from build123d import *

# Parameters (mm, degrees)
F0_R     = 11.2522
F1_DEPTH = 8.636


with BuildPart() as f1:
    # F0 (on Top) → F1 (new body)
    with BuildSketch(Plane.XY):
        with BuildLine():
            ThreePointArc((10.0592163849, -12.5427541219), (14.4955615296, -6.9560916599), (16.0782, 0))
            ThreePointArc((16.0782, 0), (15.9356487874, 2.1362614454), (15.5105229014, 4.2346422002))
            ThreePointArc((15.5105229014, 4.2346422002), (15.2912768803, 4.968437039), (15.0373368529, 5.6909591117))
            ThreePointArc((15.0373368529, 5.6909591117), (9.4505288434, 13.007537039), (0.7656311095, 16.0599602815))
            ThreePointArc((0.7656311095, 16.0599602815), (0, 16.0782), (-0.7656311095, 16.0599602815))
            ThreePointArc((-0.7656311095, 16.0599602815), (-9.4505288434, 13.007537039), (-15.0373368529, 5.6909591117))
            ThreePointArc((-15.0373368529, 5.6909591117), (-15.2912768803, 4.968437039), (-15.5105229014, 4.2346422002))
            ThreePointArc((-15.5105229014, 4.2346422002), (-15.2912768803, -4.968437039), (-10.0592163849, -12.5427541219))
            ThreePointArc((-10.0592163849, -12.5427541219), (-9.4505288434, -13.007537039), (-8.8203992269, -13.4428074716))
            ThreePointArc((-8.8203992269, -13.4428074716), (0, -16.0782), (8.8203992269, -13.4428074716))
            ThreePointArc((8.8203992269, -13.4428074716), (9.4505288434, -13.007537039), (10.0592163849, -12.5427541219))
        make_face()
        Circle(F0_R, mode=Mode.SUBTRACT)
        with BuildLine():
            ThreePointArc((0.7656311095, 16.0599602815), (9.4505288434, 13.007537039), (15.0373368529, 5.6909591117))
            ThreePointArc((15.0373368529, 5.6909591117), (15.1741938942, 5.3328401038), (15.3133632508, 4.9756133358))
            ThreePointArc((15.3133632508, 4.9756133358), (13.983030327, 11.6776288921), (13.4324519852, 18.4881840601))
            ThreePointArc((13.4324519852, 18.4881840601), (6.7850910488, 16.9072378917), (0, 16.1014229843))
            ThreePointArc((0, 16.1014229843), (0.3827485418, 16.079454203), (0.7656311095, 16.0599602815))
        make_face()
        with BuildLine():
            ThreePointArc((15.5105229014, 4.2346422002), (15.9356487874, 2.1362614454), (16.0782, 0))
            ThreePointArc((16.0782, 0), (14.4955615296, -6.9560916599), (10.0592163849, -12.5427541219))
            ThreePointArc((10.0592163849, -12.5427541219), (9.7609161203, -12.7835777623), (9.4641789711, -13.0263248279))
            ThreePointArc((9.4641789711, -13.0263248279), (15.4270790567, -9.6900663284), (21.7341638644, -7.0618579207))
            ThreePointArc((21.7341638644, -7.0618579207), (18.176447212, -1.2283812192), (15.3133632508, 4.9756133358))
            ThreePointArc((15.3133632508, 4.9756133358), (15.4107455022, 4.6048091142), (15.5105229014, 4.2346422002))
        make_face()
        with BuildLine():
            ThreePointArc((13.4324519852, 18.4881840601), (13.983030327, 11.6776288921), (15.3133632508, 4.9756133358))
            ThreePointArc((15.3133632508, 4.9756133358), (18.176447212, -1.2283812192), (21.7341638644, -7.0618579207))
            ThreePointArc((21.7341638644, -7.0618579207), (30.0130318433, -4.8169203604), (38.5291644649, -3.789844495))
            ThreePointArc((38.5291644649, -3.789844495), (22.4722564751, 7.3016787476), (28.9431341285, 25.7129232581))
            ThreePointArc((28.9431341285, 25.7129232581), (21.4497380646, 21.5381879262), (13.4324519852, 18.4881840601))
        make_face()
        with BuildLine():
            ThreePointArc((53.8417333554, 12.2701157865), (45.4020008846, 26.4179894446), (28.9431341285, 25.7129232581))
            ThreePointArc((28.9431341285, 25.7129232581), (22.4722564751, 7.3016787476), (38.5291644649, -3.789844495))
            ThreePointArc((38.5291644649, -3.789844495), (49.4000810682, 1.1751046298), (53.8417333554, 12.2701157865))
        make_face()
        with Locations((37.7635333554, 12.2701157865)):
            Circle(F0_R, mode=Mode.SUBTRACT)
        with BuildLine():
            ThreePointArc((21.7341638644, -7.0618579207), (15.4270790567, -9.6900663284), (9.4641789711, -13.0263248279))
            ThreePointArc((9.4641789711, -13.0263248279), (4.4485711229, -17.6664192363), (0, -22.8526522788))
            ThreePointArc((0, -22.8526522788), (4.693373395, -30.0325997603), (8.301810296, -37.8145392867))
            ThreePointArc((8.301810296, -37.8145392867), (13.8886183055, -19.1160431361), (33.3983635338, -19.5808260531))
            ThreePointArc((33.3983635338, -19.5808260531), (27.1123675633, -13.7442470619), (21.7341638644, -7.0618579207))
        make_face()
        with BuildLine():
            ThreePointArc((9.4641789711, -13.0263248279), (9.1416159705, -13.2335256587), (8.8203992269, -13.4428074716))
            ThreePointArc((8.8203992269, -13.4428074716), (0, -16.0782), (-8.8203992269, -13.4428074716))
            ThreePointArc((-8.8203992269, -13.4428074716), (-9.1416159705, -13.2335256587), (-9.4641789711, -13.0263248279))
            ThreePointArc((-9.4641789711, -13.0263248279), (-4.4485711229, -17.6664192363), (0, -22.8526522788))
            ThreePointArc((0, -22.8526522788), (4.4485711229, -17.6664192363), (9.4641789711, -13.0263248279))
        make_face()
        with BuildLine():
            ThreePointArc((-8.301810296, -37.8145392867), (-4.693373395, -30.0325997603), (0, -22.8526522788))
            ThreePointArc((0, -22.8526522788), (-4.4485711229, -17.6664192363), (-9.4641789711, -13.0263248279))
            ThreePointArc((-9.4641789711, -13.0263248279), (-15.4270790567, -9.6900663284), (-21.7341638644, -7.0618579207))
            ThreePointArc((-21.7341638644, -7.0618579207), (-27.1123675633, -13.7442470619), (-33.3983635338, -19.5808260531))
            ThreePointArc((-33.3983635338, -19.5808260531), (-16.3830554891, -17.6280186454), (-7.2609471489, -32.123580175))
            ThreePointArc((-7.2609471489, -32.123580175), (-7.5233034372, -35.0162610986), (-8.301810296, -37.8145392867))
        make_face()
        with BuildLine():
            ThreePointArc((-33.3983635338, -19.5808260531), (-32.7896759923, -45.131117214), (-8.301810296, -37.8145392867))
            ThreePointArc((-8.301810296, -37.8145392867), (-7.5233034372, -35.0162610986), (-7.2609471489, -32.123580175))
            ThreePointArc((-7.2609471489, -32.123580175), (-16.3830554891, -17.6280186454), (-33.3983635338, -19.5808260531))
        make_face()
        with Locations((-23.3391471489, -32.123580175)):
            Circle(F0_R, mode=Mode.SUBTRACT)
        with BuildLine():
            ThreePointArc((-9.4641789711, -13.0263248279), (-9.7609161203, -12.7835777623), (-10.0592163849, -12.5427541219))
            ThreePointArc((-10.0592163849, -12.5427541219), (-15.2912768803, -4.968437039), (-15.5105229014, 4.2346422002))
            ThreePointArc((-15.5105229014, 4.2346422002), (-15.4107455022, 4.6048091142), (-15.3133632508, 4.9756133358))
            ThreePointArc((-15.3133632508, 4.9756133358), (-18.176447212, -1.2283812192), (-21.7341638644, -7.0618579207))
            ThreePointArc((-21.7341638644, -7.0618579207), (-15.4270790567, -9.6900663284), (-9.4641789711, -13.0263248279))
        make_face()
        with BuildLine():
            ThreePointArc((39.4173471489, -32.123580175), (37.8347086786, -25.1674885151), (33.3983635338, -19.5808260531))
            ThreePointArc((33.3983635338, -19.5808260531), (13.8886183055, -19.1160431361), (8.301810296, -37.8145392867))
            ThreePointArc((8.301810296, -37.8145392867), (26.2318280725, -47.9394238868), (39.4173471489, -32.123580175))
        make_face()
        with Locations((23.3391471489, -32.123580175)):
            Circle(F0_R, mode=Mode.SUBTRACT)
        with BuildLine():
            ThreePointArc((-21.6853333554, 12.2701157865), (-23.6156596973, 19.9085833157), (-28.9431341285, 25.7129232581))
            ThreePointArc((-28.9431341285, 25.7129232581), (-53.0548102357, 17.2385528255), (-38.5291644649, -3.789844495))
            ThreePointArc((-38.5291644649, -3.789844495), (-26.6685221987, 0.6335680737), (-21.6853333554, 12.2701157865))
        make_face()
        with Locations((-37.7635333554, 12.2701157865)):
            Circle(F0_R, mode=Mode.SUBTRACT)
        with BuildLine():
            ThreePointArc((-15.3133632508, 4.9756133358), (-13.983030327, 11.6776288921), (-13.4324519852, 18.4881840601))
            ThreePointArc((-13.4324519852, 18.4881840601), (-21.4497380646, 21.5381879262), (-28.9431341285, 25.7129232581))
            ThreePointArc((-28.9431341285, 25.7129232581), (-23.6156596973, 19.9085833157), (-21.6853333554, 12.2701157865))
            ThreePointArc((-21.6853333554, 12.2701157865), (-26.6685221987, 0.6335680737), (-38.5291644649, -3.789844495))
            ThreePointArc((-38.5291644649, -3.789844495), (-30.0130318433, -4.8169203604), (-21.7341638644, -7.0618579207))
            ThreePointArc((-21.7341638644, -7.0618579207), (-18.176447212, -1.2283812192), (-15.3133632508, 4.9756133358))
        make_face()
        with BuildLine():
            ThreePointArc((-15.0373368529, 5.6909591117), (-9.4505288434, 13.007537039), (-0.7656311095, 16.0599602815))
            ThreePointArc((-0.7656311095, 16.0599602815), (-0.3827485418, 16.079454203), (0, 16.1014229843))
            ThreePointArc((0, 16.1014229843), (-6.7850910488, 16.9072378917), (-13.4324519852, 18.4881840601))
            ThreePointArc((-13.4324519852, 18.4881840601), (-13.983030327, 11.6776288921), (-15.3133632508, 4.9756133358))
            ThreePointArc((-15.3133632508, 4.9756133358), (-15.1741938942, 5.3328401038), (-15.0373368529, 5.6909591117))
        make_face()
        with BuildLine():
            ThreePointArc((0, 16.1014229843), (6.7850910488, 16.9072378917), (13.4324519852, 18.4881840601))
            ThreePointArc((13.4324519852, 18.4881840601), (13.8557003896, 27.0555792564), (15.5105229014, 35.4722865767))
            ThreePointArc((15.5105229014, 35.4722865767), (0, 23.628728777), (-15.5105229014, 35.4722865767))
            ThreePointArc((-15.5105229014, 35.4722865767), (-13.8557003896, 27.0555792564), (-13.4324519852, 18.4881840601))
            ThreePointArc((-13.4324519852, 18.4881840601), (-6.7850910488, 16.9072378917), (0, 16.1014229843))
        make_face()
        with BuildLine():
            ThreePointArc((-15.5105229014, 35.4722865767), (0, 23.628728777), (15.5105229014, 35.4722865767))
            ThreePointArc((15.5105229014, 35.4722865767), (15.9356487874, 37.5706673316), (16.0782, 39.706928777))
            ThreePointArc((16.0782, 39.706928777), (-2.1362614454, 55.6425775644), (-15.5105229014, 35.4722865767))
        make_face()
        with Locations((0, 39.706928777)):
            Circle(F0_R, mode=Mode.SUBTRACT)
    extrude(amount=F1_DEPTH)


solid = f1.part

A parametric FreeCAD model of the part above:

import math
import FreeCAD as App
import Part
import Sketcher
from FreeCAD import Vector
Q = App.Units.Quantity

doc = App.newDocument("Part")
body = doc.addObject("PartDesign::Body", "Body")

sketch1 = body.newObject("Sketcher::SketchObject", "Sketch")
sketch1.AttachmentSupport = (doc.getObject("XY_Plane"), [""])
sketch1.MapMode = "FlatFace"
sketch1.addGeometry(Part.ArcOfCircle(Part.Circle(Vector(-3.589543, 75.294638, 0), Vector(0, 0, 1), 59.301952), math.radians(-73.31921), math.radians(-56.729412)), False)
sketch1.addGeometry(Part.ArcOfCircle(Part.Circle(Vector(72.718685, 19.853464, 0), Vector(0, 0, 1), 59.301952), math.radians(164.729412), math.radians(181.31921)), False)
sketch1.addGeometry(Part.ArcOfCircle(Part.Circle(Vector(0, 39.706929, 0), Vector(0, 0, 1), 16.0782), math.radians(-15.270588), math.radians(0)), False)
sketch1.addGeometry(Part.ArcOfCircle(Part.Circle(Vector(0, 39.706929, 0), Vector(0, 0, 1), 16.0782), math.radians(0), math.radians(195.270588)), False)
sketch1.addGeometry(Part.ArcOfCircle(Part.Circle(Vector(-72.718685, 19.853464, 0), Vector(0, 0, 1), 59.301952), math.radians(-1.31921), math.radians(15.270588)), False)
sketch1.addGeometry(Part.ArcOfCircle(Part.Circle(Vector(3.589543, 75.294638, 0), Vector(0, 0, 1), 59.301952), math.radians(-123.270588), math.radians(-106.68079)), False)
sketch1.addGeometry(Part.ArcOfCircle(Part.Circle(Vector(-37.763533, 12.270116, 0), Vector(0, 0, 1), 16.0782), math.radians(56.729412), math.radians(267.270588)), False)
sketch1.addGeometry(Part.ArcOfCircle(Part.Circle(Vector(-41.353076, -63.024522, 0), Vector(0, 0, 1), 59.301952), math.radians(70.68079), math.radians(87.270588)), False)
sketch1.addGeometry(Part.ArcOfCircle(Part.Circle(Vector(-70.500226, 26.681181, 0), Vector(0, 0, 1), 59.301952), math.radians(-51.270588), math.radians(-34.68079)), False)
sketch1.addGeometry(Part.ArcOfCircle(Part.Circle(Vector(-23.339147, -32.12358, 0), Vector(0, 0, 1), 16.0782), math.radians(128.729412), math.radians(339.270588)), False)
sketch1.addGeometry(Part.ArcOfCircle(Part.Circle(Vector(47.161079, -58.804761, 0), Vector(0, 0, 1), 59.301952), math.radians(142.68079), math.radians(159.270588)), False)
sketch1.addGeometry(Part.ArcOfCircle(Part.Circle(Vector(-47.161079, -58.804761, 0), Vector(0, 0, 1), 59.301952), math.radians(20.729412), math.radians(37.31921)), False)
sketch1.addGeometry(Part.ArcOfCircle(Part.Circle(Vector(23.339147, -32.12358, 0), Vector(0, 0, 1), 16.0782), math.radians(-159.270588), math.radians(0)), False)
sketch1.addGeometry(Part.ArcOfCircle(Part.Circle(Vector(23.339147, -32.12358, 0), Vector(0, 0, 1), 16.0782), math.radians(0), math.radians(51.270588)), False)
sketch1.addGeometry(Part.ArcOfCircle(Part.Circle(Vector(70.500226, 26.681181, 0), Vector(0, 0, 1), 59.301952), math.radians(-145.31921), math.radians(-128.729412)), False)
sketch1.addGeometry(Part.ArcOfCircle(Part.Circle(Vector(41.353076, -63.024522, 0), Vector(0, 0, 1), 59.301952), math.radians(92.729412), math.radians(109.31921)), False)
sketch1.addGeometry(Part.ArcOfCircle(Part.Circle(Vector(37.763533, 12.270116, 0), Vector(0, 0, 1), 16.0782), math.radians(-87.270588), math.radians(123.270588)), False)
sketch1.addGeometry(Part.Circle(Vector(-23.339147, -32.12358, 0), Vector(0, 0, 1), 11.2522), False)
sketch1.addGeometry(Part.ArcOfCircle(Part.Circle(Vector(-41.353076, -63.024521, 0), Vector(0, 0, 1), 59.301951), math.radians(56.729412), math.radians(57.470231)), False)
sketch1.addGeometry(Part.ArcOfCircle(Part.Circle(Vector(-47.161079, -58.804761, 0), Vector(0, 0, 1), 59.301952), math.radians(50.529769), math.radians(51.270588)), False)
sketch1.addGeometry(Part.ArcOfCircle(Part.Circle(Vector(0, 0, 0), Vector(0, 0, 1), 16.0782), math.radians(-128.729412), math.radians(-123.270588)), False)
sketch1.addGeometry(Part.Circle(Vector(23.339147, -32.12358, 0), Vector(0, 0, 1), 11.2522), False)
sketch1.addGeometry(Part.ArcOfCircle(Part.Circle(Vector(47.161079, -58.804761, 0), Vector(0, 0, 1), 59.301952), math.radians(128.729412), math.radians(129.470231)), False)
sketch1.addGeometry(Part.ArcOfCircle(Part.Circle(Vector(41.353076, -63.024521, 0), Vector(0, 0, 1), 59.301951), math.radians(122.529769), math.radians(123.270588)), False)
sketch1.addGeometry(Part.ArcOfCircle(Part.Circle(Vector(0, 0, 0), Vector(0, 0, 1), 16.0782), math.radians(-56.729412), math.radians(-51.270588)), False)
sketch1.addGeometry(Part.Circle(Vector(0, 0, 0), Vector(0, 0, 1), 11.2522), False)
sketch1.addGeometry(Part.Circle(Vector(-37.763533, 12.270116, 0), Vector(0, 0, 1), 11.2522), False)
sketch1.addGeometry(Part.ArcOfCircle(Part.Circle(Vector(0, 0, 0), Vector(0, 0, 1), 16.0782), math.radians(159.270588), math.radians(164.729412)), False)
sketch1.addGeometry(Part.ArcOfCircle(Part.Circle(Vector(-72.718687, 19.853465, 0), Vector(0, 0, 1), 59.301953), math.radians(-15.270588), math.radians(-14.529769)), False)
sketch1.addGeometry(Part.ArcOfCircle(Part.Circle(Vector(-70.500227, 26.681181, 0), Vector(0, 0, 1), 59.301952), math.radians(-21.470231), math.radians(-20.729412)), False)
sketch1.addGeometry(Part.ArcOfCircle(Part.Circle(Vector(70.500227, 26.681181, 0), Vector(0, 0, 1), 59.301952), math.radians(-159.270588), math.radians(-158.529769)), False)
sketch1.addGeometry(Part.ArcOfCircle(Part.Circle(Vector(72.718687, 19.853465, 0), Vector(0, 0, 1), 59.301953), math.radians(-165.470231), math.radians(-164.729412)), False)
sketch1.addGeometry(Part.ArcOfCircle(Part.Circle(Vector(0, 0, 0), Vector(0, 0, 1), 16.0782), math.radians(15.270588), math.radians(20.729412)), False)
sketch1.addGeometry(Part.ArcOfCircle(Part.Circle(Vector(-3.589543, 75.294639, 0), Vector(0, 0, 1), 59.301953), math.radians(-87.270588), math.radians(-86.529769)), False)
sketch1.addGeometry(Part.ArcOfCircle(Part.Circle(Vector(3.589543, 75.294639, 0), Vector(0, 0, 1), 59.301953), math.radians(-93.470231), math.radians(-92.729412)), False)
sketch1.addGeometry(Part.ArcOfCircle(Part.Circle(Vector(0, 0, 0), Vector(0, 0, 1), 16.0782), math.radians(87.270588), math.radians(92.729412)), False)
sketch1.addGeometry(Part.Circle(Vector(37.763533, 12.270116, 0), Vector(0, 0, 1), 11.2522), False)
sketch1.addGeometry(Part.Circle(Vector(0, 39.706929, 0), Vector(0, 0, 1), 11.2522), False)
sketch1.addConstraint(Sketcher.Constraint("Coincident", 0, 1, 1, 2))
sketch1.addConstraint(Sketcher.Constraint("Coincident", 1, 1, 2, 1))
sketch1.addConstraint(Sketcher.Constraint("Coincident", 2, 2, 3, 1))
sketch1.addConstraint(Sketcher.Constraint("Coincident", 3, 2, 4, 2))
sketch1.addConstraint(Sketcher.Constraint("Coincident", 4, 1, 5, 2))
sketch1.addConstraint(Sketcher.Constraint("Coincident", 5, 1, 6, 1))
sketch1.addConstraint(Sketcher.Constraint("Coincident", 6, 2, 7, 2))
sketch1.addConstraint(Sketcher.Constraint("Coincident", 7, 1, 8, 2))
sketch1.addConstraint(Sketcher.Constraint("Coincident", 8, 1, 9, 1))
sketch1.addConstraint(Sketcher.Constraint("Coincident", 9, 2, 10, 2))
sketch1.addConstraint(Sketcher.Constraint("Coincident", 10, 1, 11, 2))
sketch1.addConstraint(Sketcher.Constraint("Coincident", 11, 1, 12, 1))
sketch1.addConstraint(Sketcher.Constraint("Coincident", 12, 2, 13, 1))
sketch1.addConstraint(Sketcher.Constraint("Coincident", 13, 2, 14, 2))
sketch1.addConstraint(Sketcher.Constraint("Coincident", 14, 1, 15, 2))
sketch1.addConstraint(Sketcher.Constraint("Coincident", 15, 1, 16, 1))
sketch1.addConstraint(Sketcher.Constraint("Coincident", 16, 2, 0, 2))
sketch1.addConstraint(Sketcher.Constraint("Coincident", 18, 2, 19, 1))
sketch1.addConstraint(Sketcher.Constraint("Coincident", 19, 2, 20, 1))
sketch1.addConstraint(Sketcher.Constraint("Coincident", 20, 2, 18, 1))
sketch1.addConstraint(Sketcher.Constraint("Coincident", 22, 2, 23, 1))
sketch1.addConstraint(Sketcher.Constraint("Coincident", 23, 2, 24, 1))
sketch1.addConstraint(Sketcher.Constraint("Coincident", 24, 2, 22, 1))
sketch1.addConstraint(Sketcher.Constraint("Coincident", 27, 2, 28, 1))
sketch1.addConstraint(Sketcher.Constraint("Coincident", 28, 2, 29, 1))
sketch1.addConstraint(Sketcher.Constraint("Coincident", 29, 2, 27, 1))
sketch1.addConstraint(Sketcher.Constraint("Coincident", 30, 2, 31, 1))
sketch1.addConstraint(Sketcher.Constraint("Coincident", 31, 2, 32, 1))
sketch1.addConstraint(Sketcher.Constraint("Coincident", 32, 2, 30, 1))
sketch1.addConstraint(Sketcher.Constraint("Coincident", 33, 2, 34, 1))
sketch1.addConstraint(Sketcher.Constraint("Coincident", 34, 2, 35, 1))
sketch1.addConstraint(Sketcher.Constraint("Coincident", 35, 2, 33, 1))
sketch1.addConstraint(Sketcher.Constraint("Coincident", 20, 3, -1, 1))
sketch1.addConstraint(Sketcher.Constraint("Coincident", 24, 3, -1, 1))
sketch1.addConstraint(Sketcher.Constraint("Coincident", 25, 3, -1, 1))
sketch1.addConstraint(Sketcher.Constraint("Coincident", 27, 3, -1, 1))
sketch1.addConstraint(Sketcher.Constraint("Coincident", 32, 3, -1, 1))
sketch1.addConstraint(Sketcher.Constraint("Coincident", 35, 3, -1, 1))
sketch1.addConstraint(Sketcher.Constraint("Coincident", 3, 3, 2, 3))
sketch1.addConstraint(Sketcher.Constraint("Coincident", 13, 3, 12, 3))
sketch1.addConstraint(Sketcher.Constraint("Coincident", 17, 3, 9, 3))
sketch1.addConstraint(Sketcher.Constraint("Coincident", 18, 3, 7, 3))
sketch1.addConstraint(Sketcher.Constraint("Coincident", 19, 3, 11, 3))
sketch1.addConstraint(Sketcher.Constraint("Coincident", 21, 3, 12, 3))
sketch1.addConstraint(Sketcher.Constraint("Coincident", 22, 3, 10, 3))
sketch1.addConstraint(Sketcher.Constraint("Coincident", 23, 3, 15, 3))
sketch1.addConstraint(Sketcher.Constraint("Coincident", 26, 3, 6, 3))
sketch1.addConstraint(Sketcher.Constraint("Coincident", 28, 3, 4, 3))
sketch1.addConstraint(Sketcher.Constraint("Coincident", 29, 3, 8, 3))
sketch1.addConstraint(Sketcher.Constraint("Coincident", 30, 3, 14, 3))
sketch1.addConstraint(Sketcher.Constraint("Coincident", 31, 3, 1, 3))
sketch1.addConstraint(Sketcher.Constraint("Coincident", 33, 3, 0, 3))
sketch1.addConstraint(Sketcher.Constraint("Coincident", 34, 3, 5, 3))
sketch1.addConstraint(Sketcher.Constraint("Coincident", 36, 3, 16, 3))
sketch1.addConstraint(Sketcher.Constraint("Coincident", 37, 3, 2, 3))
sketch1.addConstraint(Sketcher.Constraint("PointOnObject", 2, 3, -2))
sketch1.addConstraint(Sketcher.Constraint("PointOnObject", 10, 1, -2))
sketch1.addConstraint(Sketcher.Constraint("Diameter", 17, Q("0.886 in")))
sketch1.addConstraint(Sketcher.Constraint("Diameter", 21, Q("0.886 in")))
sketch1.addConstraint(Sketcher.Constraint("Diameter", 25, Q("0.886 in")))
sketch1.addConstraint(Sketcher.Constraint("Diameter", 26, Q("0.886 in")))
sketch1.addConstraint(Sketcher.Constraint("Diameter", 36, Q("0.886 in")))
sketch1.addConstraint(Sketcher.Constraint("Diameter", 37, Q("0.886 in")))
sketch1.addConstraint(Sketcher.Constraint("Radius", 2, Q("0.633 in")))
sketch1.addConstraint(Sketcher.Constraint("Radius", 6, Q("0.633 in")))
sketch1.addConstraint(Sketcher.Constraint("Radius", 9, Q("0.633 in")))
sketch1.addConstraint(Sketcher.Constraint("Radius", 12, Q("0.633 in")))
sketch1.addConstraint(Sketcher.Constraint("Radius", 16, Q("0.633 in")))
sketch1.addConstraint(Sketcher.Constraint("Radius", 20, Q("0.633 in")))
sketch1.addConstraint(Sketcher.Constraint("Radius", 24, Q("0.633 in")))
sketch1.addConstraint(Sketcher.Constraint("Radius", 27, Q("0.633 in")))
sketch1.addConstraint(Sketcher.Constraint("Radius", 32, Q("0.633 in")))
sketch1.addConstraint(Sketcher.Constraint("Radius", 35, Q("0.633 in")))
sketch1.addConstraint(Sketcher.Constraint("Radius", 0, 59.301952))
sketch1.addConstraint(Sketcher.Constraint("Radius", 1, 59.301952))
sketch1.addConstraint(Sketcher.Constraint("Radius", 4, 59.301952))
sketch1.addConstraint(Sketcher.Constraint("Radius", 5, 59.301952))
sketch1.addConstraint(Sketcher.Constraint("Radius", 7, 59.301952))
sketch1.addConstraint(Sketcher.Constraint("Radius", 8, 59.301952))
sketch1.addConstraint(Sketcher.Constraint("Radius", 10, 59.301952))
sketch1.addConstraint(Sketcher.Constraint("Radius", 11, 59.301952))
sketch1.addConstraint(Sketcher.Constraint("Radius", 14, 59.301952))
sketch1.addConstraint(Sketcher.Constraint("Radius", 15, 59.301952))
sketch1.addConstraint(Sketcher.Constraint("Radius", 18, 59.301951))
sketch1.addConstraint(Sketcher.Constraint("Radius", 19, 59.301952))
sketch1.addConstraint(Sketcher.Constraint("Radius", 22, 59.301952))
sketch1.addConstraint(Sketcher.Constraint("Radius", 23, 59.301951))
sketch1.addConstraint(Sketcher.Constraint("Radius", 28, 59.301953))
sketch1.addConstraint(Sketcher.Constraint("Radius", 29, 59.301952))
sketch1.addConstraint(Sketcher.Constraint("Radius", 30, 59.301952))
sketch1.addConstraint(Sketcher.Constraint("Radius", 31, 59.301953))
sketch1.addConstraint(Sketcher.Constraint("Radius", 33, 59.301953))
sketch1.addConstraint(Sketcher.Constraint("Radius", 34, 59.301953))
sketch1.addConstraint(Sketcher.Constraint("DistanceX", 20, 2, -1, 1, 8.820399))
sketch1.addConstraint(Sketcher.Constraint("DistanceX", -1, 1, 23, 2, 8.820399))
sketch1.addConstraint(Sketcher.Constraint("DistanceY", -1, 1, 2, 3, 39.706929))
sketch1.addConstraint(Sketcher.Constraint("DistanceY", 7, 3, -1, 1, 63.024522))
sketch1.addConstraint(Sketcher.Constraint("DistanceY", -1, 1, 8, 3, 26.681181))
sketch1.addConstraint(Sketcher.Constraint("DistanceY", 9, 3, -1, 1, 32.12358))
sketch1.addConstraint(Sketcher.Constraint("DistanceY", 12, 3, -1, 1, 32.12358))
sketch1.addConstraint(Sketcher.Constraint("DistanceY", 15, 3, -1, 1, 63.024522))
sketch1.addConstraint(Sketcher.Constraint("DistanceY", -1, 1, 33, 3, 75.294639))
sketch1.addConstraint(Sketcher.Constraint("DistanceY", -1, 1, 34, 3, 75.294639))
sketch1.addConstraint(Sketcher.Constraint("DistanceY", -1, 1, 2, 2, 39.706929))
sketch1.addConstraint(Sketcher.Constraint("DistanceX", 9, 2, -1, 1, 8.30181))
sketch1.addConstraint(Sketcher.Constraint("DistanceX", -1, 1, 11, 1, 8.30181))
sketch1.addConstraint(Sketcher.Constraint("DistanceY", 12, 2, -1, 1, 32.12358))
sketch1.addConstraint(Sketcher.Constraint("DistanceY", -1, 1, 29, 2, 5.690959))
sketch1.addConstraint(Sketcher.Constraint("DistanceY", -1, 1, 32, 2, 5.690959))
sketch1.addConstraint(Sketcher.Constraint("DistanceX", -1, 1, 34, 2, 0.765631))
sketch1.addConstraint(Sketcher.Constraint("DistanceX", 35, 2, -1, 1, 0.765631))
sketch1.addConstraint(Sketcher.Constraint("DistanceX", -1, 1, 1, 1, 15.510523))
sketch1.addConstraint(Sketcher.Constraint("DistanceX", 3, 2, -1, 1, 15.510523))
sketch1.addConstraint(Sketcher.Constraint("DistanceX", 5, 1, -1, 1, 28.943134))
sketch1.addConstraint(Sketcher.Constraint("DistanceX", 6, 2, -1, 1, 38.529164))
sketch1.addConstraint(Sketcher.Constraint("DistanceX", 8, 1, -1, 1, 33.398364))
sketch1.addConstraint(Sketcher.Constraint("DistanceX", -1, 1, 13, 2, 33.398364))
sketch1.addConstraint(Sketcher.Constraint("DistanceX", -1, 1, 15, 1, 38.529164))
sketch1.addConstraint(Sketcher.Constraint("DistanceX", -1, 1, 16, 2, 28.943134))
sketch1.addConstraint(Sketcher.Constraint("DistanceX", 19, 2, -1, 1, 10.059216))
sketch1.addConstraint(Sketcher.Constraint("DistanceX", -1, 1, 24, 2, 10.059216))
sketch1.addConstraint(Sketcher.Constraint("DistanceX", 27, 2, -1, 1, 15.510523))
sketch1.addConstraint(Sketcher.Constraint("DistanceX", -1, 1, 31, 2, 15.510523))
pad1 = body.newObject("PartDesign::Pad", "Pad")
pad1.Profile = sketch1
pad1.Length = Q("0.34 in")

doc.recompute()
